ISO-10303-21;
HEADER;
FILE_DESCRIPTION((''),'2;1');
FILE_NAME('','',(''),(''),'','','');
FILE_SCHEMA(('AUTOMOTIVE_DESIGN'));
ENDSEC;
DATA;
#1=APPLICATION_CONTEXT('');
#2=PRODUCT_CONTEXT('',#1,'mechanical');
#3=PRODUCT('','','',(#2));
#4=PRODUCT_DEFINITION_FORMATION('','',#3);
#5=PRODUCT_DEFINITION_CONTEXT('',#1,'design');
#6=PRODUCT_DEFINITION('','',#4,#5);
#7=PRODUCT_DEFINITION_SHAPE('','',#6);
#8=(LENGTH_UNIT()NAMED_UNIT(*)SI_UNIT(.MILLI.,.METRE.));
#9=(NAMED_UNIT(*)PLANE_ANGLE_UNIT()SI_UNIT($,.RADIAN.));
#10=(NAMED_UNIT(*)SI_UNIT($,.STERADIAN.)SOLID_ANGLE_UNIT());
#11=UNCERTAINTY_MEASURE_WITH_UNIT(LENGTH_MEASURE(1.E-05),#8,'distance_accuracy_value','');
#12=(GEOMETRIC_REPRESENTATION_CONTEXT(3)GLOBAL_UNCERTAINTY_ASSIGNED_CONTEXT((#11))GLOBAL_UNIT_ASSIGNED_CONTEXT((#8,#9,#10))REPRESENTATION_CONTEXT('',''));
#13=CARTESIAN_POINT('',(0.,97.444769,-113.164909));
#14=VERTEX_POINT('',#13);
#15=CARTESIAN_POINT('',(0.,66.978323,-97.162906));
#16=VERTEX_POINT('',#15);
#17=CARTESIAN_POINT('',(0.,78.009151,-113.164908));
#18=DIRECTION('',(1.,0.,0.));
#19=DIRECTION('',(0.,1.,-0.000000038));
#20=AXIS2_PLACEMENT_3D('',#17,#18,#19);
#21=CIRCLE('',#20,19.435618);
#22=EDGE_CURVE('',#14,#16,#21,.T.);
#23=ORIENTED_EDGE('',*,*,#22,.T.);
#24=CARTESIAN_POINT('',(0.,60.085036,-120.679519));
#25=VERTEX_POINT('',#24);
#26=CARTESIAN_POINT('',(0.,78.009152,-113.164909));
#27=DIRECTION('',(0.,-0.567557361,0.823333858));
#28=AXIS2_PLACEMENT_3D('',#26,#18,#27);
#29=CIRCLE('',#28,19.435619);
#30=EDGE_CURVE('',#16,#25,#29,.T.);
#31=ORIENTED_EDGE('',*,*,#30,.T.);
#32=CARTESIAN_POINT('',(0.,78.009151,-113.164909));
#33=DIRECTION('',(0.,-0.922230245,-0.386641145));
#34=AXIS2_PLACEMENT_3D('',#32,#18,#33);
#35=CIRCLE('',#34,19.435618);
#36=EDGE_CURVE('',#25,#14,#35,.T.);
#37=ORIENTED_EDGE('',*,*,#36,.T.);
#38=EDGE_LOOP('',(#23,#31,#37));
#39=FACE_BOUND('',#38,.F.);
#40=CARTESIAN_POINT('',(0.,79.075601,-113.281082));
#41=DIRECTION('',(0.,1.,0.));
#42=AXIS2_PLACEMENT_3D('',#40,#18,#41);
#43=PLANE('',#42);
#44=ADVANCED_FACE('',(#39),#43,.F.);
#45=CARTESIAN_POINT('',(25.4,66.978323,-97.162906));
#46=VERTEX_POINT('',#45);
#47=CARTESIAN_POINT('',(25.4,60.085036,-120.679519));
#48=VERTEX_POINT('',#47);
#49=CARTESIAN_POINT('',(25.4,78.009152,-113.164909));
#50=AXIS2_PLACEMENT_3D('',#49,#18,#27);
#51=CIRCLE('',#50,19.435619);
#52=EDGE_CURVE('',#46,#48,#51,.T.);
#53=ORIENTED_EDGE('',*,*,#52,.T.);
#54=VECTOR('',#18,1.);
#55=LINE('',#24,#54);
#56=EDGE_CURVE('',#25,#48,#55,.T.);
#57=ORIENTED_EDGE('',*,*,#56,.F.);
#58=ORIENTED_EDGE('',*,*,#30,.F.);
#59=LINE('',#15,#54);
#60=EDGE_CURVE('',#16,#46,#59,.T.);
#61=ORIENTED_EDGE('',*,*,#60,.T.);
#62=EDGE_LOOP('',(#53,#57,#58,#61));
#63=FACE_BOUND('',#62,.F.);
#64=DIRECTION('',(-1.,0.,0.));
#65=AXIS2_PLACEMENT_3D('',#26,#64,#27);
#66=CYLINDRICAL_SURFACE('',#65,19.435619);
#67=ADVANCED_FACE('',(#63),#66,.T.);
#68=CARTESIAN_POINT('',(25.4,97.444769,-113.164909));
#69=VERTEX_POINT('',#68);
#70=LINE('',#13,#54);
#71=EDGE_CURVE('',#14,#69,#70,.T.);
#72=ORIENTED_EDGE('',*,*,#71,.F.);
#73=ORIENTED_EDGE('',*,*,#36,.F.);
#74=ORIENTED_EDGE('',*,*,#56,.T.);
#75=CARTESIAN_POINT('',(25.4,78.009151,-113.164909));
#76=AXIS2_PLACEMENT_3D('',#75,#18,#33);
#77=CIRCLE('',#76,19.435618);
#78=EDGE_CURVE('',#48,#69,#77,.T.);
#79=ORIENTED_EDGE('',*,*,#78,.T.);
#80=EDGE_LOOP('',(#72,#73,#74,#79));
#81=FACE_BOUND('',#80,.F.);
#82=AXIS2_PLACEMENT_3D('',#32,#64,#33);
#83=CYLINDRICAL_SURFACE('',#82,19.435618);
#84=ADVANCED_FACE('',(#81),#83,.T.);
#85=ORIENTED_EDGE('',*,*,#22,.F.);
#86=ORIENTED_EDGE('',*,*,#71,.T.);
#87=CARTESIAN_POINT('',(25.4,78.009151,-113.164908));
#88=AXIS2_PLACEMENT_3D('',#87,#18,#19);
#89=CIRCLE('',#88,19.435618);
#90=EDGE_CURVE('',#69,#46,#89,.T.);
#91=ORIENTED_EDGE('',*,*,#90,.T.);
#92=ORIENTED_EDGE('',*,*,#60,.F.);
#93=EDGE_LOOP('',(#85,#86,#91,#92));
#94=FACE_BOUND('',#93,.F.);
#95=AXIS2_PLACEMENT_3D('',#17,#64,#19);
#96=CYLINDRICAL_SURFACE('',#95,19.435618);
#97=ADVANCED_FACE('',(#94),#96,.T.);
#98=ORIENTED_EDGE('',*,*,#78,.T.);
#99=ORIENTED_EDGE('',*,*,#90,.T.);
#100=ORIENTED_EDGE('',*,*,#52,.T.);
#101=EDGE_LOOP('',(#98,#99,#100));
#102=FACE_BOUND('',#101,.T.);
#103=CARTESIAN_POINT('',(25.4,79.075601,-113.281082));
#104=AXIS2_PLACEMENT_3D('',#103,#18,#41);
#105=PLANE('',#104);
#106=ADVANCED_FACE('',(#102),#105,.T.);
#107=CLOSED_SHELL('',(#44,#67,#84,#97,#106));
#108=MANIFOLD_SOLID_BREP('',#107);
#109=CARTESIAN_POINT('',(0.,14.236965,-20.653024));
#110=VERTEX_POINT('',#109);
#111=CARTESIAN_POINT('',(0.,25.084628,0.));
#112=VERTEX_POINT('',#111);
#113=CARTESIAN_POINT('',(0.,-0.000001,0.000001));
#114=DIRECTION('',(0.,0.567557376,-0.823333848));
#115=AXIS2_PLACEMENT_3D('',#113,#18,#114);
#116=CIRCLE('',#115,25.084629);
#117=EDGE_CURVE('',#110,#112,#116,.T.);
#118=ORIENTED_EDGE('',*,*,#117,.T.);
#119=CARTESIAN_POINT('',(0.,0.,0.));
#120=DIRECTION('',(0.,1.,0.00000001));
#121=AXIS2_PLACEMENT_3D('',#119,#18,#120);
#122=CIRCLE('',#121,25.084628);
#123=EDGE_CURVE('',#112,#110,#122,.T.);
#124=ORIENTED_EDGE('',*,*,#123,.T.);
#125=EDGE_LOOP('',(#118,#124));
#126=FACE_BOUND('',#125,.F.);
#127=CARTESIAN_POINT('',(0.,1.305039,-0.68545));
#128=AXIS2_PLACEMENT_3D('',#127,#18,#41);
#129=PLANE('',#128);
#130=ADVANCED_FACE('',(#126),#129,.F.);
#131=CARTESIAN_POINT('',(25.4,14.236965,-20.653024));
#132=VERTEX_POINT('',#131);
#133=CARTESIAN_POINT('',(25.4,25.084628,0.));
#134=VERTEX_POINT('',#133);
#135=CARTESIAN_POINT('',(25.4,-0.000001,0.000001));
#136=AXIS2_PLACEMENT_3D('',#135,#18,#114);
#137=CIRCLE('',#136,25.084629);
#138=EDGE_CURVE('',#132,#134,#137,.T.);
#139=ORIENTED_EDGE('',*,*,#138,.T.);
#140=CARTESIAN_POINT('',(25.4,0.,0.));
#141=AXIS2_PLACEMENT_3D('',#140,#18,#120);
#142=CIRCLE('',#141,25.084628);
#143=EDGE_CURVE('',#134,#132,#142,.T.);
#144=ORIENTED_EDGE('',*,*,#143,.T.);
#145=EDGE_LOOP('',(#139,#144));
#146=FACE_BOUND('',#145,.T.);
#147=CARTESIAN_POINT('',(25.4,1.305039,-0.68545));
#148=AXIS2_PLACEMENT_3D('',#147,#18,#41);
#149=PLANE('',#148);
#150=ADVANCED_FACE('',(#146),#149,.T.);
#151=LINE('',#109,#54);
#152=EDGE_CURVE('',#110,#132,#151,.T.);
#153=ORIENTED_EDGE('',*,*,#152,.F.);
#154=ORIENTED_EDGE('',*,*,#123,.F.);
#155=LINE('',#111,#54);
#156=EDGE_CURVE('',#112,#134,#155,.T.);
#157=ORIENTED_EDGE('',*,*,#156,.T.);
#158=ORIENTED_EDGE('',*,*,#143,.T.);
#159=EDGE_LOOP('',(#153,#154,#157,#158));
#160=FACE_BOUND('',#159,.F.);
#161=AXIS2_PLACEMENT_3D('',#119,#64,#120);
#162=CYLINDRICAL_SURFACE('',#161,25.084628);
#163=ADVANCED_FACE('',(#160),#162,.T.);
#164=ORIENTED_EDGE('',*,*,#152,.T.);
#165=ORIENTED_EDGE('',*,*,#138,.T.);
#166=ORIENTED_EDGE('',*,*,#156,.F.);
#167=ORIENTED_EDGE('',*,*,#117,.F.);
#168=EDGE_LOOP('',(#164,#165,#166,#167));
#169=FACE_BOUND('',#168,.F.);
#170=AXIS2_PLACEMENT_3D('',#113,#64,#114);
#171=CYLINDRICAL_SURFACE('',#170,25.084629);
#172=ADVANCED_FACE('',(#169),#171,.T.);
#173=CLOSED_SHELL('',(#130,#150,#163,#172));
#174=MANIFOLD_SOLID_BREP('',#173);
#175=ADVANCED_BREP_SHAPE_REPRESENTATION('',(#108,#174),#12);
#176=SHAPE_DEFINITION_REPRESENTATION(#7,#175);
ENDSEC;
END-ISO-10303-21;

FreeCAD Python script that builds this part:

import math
import FreeCAD as App
import Part
import Sketcher
from FreeCAD import Vector
Q = App.Units.Quantity

doc = App.newDocument("Part")
params = doc.addObject("Spreadsheet::Sheet", "Params")
for row, (alias, value) in enumerate([
    ("sketch1_height", "0.6300001 in"),
    ("pad1_length", "1 in"),
], start=1):
    params.set(f"A{row}", alias)
    params.set(f"B{row}", "=" + value)
    params.setAlias(f"B{row}", alias)

body = doc.addObject("PartDesign::Body", "Body")
body.AllowCompound = True

# Sketch on YZ plane
sketch1 = body.newObject("Sketcher::SketchObject", "Sketch")
sketch1.AttachmentSupport = (doc.getObject("YZ_Plane"), [""])
sketch1.MapMode = "FlatFace"
sketch1.addGeometry(Part.ArcOfCircle(Part.Circle(Vector(78, -113, 0), Vector(0, 0, 1), 19), math.radians(0), math.radians(125)), False)
sketch1.addGeometry(Part.ArcOfCircle(Part.Circle(Vector(78, -113, 0), Vector(0, 0, 1), 19), math.radians(125), math.radians(203)), False)
sketch1.addGeometry(Part.ArcOfCircle(Part.Circle(Vector(78, -113, 0), Vector(0, 0, 1), 19), math.radians(-157), math.radians(0)), False)
sketch1.addGeometry(Part.ArcOfCircle(Part.Circle(Vector(0, 0, 0), Vector(0, 0, 1), 25), math.radians(-55), math.radians(0)), False)
sketch1.addGeometry(Part.ArcOfCircle(Part.Circle(Vector(0, 0, 0), Vector(0, 0, 1), 25), math.radians(0), math.radians(305)), False)
sketch1.addConstraint(Sketcher.Constraint("Tangent", 0, 2, 1, 1))
sketch1.addConstraint(Sketcher.Constraint("Tangent", 1, 2, 2, 1))
sketch1.addConstraint(Sketcher.Constraint("Tangent", 2, 2, 0, 1))
sketch1.addConstraint(Sketcher.Constraint("Tangent", 3, 1, 4, 2))
sketch1.addConstraint(Sketcher.Constraint("Coincident", 4, 1, 3, 2))
sketch1.addConstraint(Sketcher.Constraint("Coincident", 3, 3, -1, 1))
sketch1.addConstraint(Sketcher.Constraint("PointOnObject", 4, 1, -1))
sketch1.addConstraint(Sketcher.Constraint("Horizontal", 1, 3, 2, 2))
sketch1.addConstraint(Sketcher.Constraint("DistanceY", 0, 3, 0, 2, Q("0.6300001 in")))
sketch1.addConstraint(Sketcher.Constraint("Radius", 1, 19.435619))
sketch1.addConstraint(Sketcher.Constraint("Radius", 3, 25.084629))
sketch1.addConstraint(Sketcher.Constraint("DistanceY", 0, 2, 3, 1, Q("3.0122001 in")))
sketch1.addConstraint(Sketcher.Constraint("DistanceX", -1, 1, 0, 3, 78.009151))
sketch1.addConstraint(Sketcher.Constraint("DistanceY", 0, 3, -1, 1, 113.164908))
sketch1.addConstraint(Sketcher.Constraint("DistanceY", 1, 2, -1, 1, 120.679519))
sketch1.setExpression("Constraints[8]", "Params.sketch1_height")
pad1 = body.newObject("PartDesign::Pad", "Pad")
pad1.Profile = sketch1
pad1.setExpression("Length", "Params.pad1_length")

doc.recompute()
